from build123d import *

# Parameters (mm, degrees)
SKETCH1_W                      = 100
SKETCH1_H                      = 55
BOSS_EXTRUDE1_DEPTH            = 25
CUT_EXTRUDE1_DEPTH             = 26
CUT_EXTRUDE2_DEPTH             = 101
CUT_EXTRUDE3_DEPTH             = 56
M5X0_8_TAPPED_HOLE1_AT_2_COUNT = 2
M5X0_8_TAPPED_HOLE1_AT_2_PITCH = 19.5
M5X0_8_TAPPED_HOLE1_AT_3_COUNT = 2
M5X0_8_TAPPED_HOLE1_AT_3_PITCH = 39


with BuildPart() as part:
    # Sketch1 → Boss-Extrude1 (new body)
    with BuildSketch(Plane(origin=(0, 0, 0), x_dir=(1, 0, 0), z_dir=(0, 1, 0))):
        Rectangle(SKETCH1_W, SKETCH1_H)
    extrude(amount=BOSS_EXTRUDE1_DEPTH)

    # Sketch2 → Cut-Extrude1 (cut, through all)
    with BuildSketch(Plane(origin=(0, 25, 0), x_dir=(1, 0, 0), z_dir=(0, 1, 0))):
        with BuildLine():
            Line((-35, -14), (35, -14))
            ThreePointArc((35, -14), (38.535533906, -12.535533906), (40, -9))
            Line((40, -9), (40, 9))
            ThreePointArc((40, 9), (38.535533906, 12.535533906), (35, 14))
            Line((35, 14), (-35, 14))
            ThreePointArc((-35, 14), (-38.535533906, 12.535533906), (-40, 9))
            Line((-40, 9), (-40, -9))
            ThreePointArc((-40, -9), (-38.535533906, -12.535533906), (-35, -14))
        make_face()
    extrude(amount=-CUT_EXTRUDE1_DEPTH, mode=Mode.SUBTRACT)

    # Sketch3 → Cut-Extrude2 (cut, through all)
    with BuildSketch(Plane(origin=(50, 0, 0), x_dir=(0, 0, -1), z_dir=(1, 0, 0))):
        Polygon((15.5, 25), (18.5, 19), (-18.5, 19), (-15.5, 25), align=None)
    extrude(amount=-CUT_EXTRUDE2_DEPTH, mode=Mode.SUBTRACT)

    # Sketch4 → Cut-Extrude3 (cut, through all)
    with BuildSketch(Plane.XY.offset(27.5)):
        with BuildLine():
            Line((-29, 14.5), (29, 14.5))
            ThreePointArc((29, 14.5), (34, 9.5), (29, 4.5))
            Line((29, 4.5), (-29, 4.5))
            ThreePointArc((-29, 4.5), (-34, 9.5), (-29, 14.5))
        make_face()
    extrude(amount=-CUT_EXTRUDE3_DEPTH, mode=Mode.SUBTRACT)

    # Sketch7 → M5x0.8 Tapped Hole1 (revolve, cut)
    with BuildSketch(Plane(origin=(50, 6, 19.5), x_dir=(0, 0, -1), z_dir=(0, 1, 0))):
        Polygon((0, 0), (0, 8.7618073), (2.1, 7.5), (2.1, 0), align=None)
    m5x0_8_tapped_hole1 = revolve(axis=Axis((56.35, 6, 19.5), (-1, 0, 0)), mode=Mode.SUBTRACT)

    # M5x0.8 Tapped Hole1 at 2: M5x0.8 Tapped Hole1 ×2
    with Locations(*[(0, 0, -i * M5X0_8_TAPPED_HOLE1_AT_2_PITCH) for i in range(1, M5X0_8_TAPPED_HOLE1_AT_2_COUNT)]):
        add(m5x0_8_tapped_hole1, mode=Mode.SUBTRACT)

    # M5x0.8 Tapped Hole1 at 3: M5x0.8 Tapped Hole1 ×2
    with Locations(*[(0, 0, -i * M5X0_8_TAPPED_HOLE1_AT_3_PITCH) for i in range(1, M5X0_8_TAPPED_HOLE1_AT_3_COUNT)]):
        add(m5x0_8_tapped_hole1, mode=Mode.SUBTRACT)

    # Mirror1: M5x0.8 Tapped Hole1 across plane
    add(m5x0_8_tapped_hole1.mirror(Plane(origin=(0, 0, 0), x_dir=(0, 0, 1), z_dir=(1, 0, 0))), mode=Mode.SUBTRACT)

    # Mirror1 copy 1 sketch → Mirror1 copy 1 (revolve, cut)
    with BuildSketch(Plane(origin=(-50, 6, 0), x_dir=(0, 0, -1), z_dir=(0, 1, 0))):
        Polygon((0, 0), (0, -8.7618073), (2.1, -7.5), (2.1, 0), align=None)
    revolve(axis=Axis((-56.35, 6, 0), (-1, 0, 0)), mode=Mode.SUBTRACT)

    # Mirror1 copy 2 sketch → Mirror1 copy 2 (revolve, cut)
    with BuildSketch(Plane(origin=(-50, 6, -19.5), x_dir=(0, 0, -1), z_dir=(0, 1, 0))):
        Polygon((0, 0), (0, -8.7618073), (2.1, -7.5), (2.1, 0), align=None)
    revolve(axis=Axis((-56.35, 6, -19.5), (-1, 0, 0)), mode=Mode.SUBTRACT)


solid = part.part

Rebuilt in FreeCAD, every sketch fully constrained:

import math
import FreeCAD as App
import Part
import Sketcher
Q = App.Units.Quantity


def add_polygon(sketch, points):
    """Adds a closed chain of lines whose ends are joined by coincident constraints."""
    first, n = sketch.GeometryCount, len(points)
    for a, b in zip(points, points[1:] + points[:1]):
        sketch.addGeometry(Part.LineSegment(App.Vector(*a, 0), App.Vector(*b, 0)), False)
    for i in range(n):
        sketch.addConstraint(Sketcher.Constraint("Coincident", first + i, 2, first + (i + 1) % n, 1))

doc = App.newDocument("Part")
body = doc.addObject("PartDesign::Body", "Body")

sketch1 = body.newObject("Sketcher::SketchObject", "Sketch")
sketch1.AttachmentSupport = (doc.getObject("XZ_Plane"), [""])
sketch1.MapMode = "FlatFace"
add_polygon(sketch1, [(-50, -28), (-50, 28), (50, 28), (50, -28)])
sketch1.addConstraint(Sketcher.Constraint("Vertical", 0))
sketch1.addConstraint(Sketcher.Constraint("Horizontal", 1))
sketch1.addConstraint(Sketcher.Constraint("Vertical", 2))
sketch1.addConstraint(Sketcher.Constraint("Horizontal", 3))
sketch1.addConstraint(Sketcher.Constraint("Symmetric", 0, 2, 2, 2, -1, 1))
sketch1.addConstraint(Sketcher.Constraint("DistanceX", 1, 1, 1, 2, Q("100 mm")))
sketch1.addConstraint(Sketcher.Constraint("DistanceY", 0, 1, 0, 2, Q("55 mm")))
pad1 = body.newObject("PartDesign::Pad", "Pad")
pad1.Profile = sketch1
pad1.Length = 25
pad1.Reversed = True

sketch2 = body.newObject("Sketcher::SketchObject", "Sketch001")
sketch2.AttachmentSupport = (doc.getObject("XZ_Plane"), [""])
sketch2.MapMode = "FlatFace"
sketch2.AttachmentOffset = App.Placement(App.Vector(0, 0, -25), App.Rotation())
sketch2.addGeometry(Part.LineSegment(App.Vector(-35, 14, 0), App.Vector(35, 14, 0)), False)
sketch2.addGeometry(Part.ArcOfCircle(Part.Circle(App.Vector(35, 9, 0), App.Vector(0, 0, 1), 5), math.radians(0), math.radians(90)), False)
sketch2.addGeometry(Part.LineSegment(App.Vector(40, 9, 0), App.Vector(40, -9, 0)), False)
sketch2.addGeometry(Part.ArcOfCircle(Part.Circle(App.Vector(35, -9, 0), App.Vector(0, 0, 1), 5), math.radians(-90), math.radians(0)), False)
sketch2.addGeometry(Part.LineSegment(App.Vector(35, -14, 0), App.Vector(-35, -14, 0)), False)
sketch2.addGeometry(Part.ArcOfCircle(Part.Circle(App.Vector(-35, -9, 0), App.Vector(0, 0, 1), 5), math.radians(180), math.radians(270)), False)
sketch2.addGeometry(Part.LineSegment(App.Vector(-40, -9, 0), App.Vector(-40, 9, 0)), False)
sketch2.addGeometry(Part.ArcOfCircle(Part.Circle(App.Vector(-35, 9, 0), App.Vector(0, 0, 1), 5), math.radians(90), math.radians(180)), False)
sketch2.addConstraint(Sketcher.Constraint("Tangent", 0, 2, 1, 2))
sketch2.addConstraint(Sketcher.Constraint("Tangent", 1, 1, 2, 1))
sketch2.addConstraint(Sketcher.Constraint("Tangent", 2, 2, 3, 2))
sketch2.addConstraint(Sketcher.Constraint("Tangent", 3, 1, 4, 1))
sketch2.addConstraint(Sketcher.Constraint("Tangent", 4, 2, 5, 2))
sketch2.addConstraint(Sketcher.Constraint("Tangent", 5, 1, 6, 1))
sketch2.addConstraint(Sketcher.Constraint("Tangent", 6, 2, 7, 2))
sketch2.addConstraint(Sketcher.Constraint("Tangent", 7, 1, 0, 1))
sketch2.addConstraint(Sketcher.Constraint("Horizontal", 0))
sketch2.addConstraint(Sketcher.Constraint("Vertical", 2))
sketch2.addConstraint(Sketcher.Constraint("Horizontal", 4))
sketch2.addConstraint(Sketcher.Constraint("Vertical", 6))
sketch2.addConstraint(Sketcher.Constraint("Equal", 1, 3))
sketch2.addConstraint(Sketcher.Constraint("Equal", 3, 5))
sketch2.addConstraint(Sketcher.Constraint("Equal", 5, 7))
sketch2.addConstraint(Sketcher.Constraint("Symmetric", 1, 3, 5, 3, -1, 1))
sketch2.addConstraint(Sketcher.Constraint("Radius", 1, Q("5 mm")))
sketch2.addConstraint(Sketcher.Constraint("DistanceX", 0, 1, 0, 2, Q("70 mm")))
sketch2.addConstraint(Sketcher.Constraint("DistanceY", 2, 2, 2, 1, Q("18 mm")))
pocket1 = body.newObject("PartDesign::Pocket", "Pocket")
pocket1.Profile = sketch2
pocket1.Type = "ThroughAll"
pocket1.Reversed = True

sketch3 = body.newObject("Sketcher::SketchObject", "Sketch002")
sketch3.AttachmentSupport = (doc.getObject("YZ_Plane"), [""])
sketch3.MapMode = "FlatFace"
sketch3.AttachmentOffset = App.Placement(App.Vector(0, 0, 50), App.Rotation())
add_polygon(sketch3, [(19, -18), (25, -16), (25, 16), (19, 18)])
sketch3.addConstraint(Sketcher.Constraint("Vertical", 1))
sketch3.addConstraint(Sketcher.Constraint("Vertical", 3))
sketch3.addConstraint(Sketcher.Constraint("Equal", 0, 2))
sketch3.addConstraint(Sketcher.Constraint("DistanceY", 1, 1, 1, 2, Q("31 mm")))
sketch3.addConstraint(Sketcher.Constraint("DistanceY", 3, 2, 3, 1, Q("37 mm")))
sketch3.addConstraint(Sketcher.Constraint("DistanceX", -1, 1, 0, 2, Q("25 mm")))
sketch3.addConstraint(Sketcher.Constraint("DistanceX", -1, 1, 2, 2, Q("19 mm")))
sketch3.addConstraint(Sketcher.Constraint("DistanceY", 0, 2, -1, 1, Q("15.5 mm")))
pocket2 = body.newObject("PartDesign::Pocket", "Pocket001")
pocket2.Profile = sketch3
pocket2.Type = "ThroughAll"

sketch4 = body.newObject("Sketcher::SketchObject", "Sketch003")
sketch4.AttachmentSupport = (doc.getObject("XY_Plane"), [""])
sketch4.MapMode = "FlatFace"
sketch4.AttachmentOffset = App.Placement(App.Vector(0, 0, 27.5), App.Rotation())
sketch4.addGeometry(Part.LineSegment(App.Vector(29, 14, 0), App.Vector(-29, 14, 0)), False)
sketch4.addGeometry(Part.ArcOfCircle(Part.Circle(App.Vector(-29, 10, 0), App.Vector(0, 0, 1), 5), math.radians(90), math.radians(270)), False)
sketch4.addGeometry(Part.LineSegment(App.Vector(-29, 4, 0), App.Vector(29, 4, 0)), False)
sketch4.addGeometry(Part.ArcOfCircle(Part.Circle(App.Vector(29, 10, 0), App.Vector(0, 0, 1), 5), math.radians(-90), math.radians(90)), False)
sketch4.addConstraint(Sketcher.Constraint("Tangent", 0, 2, 1, 1))
sketch4.addConstraint(Sketcher.Constraint("Tangent", 1, 2, 2, 1))
sketch4.addConstraint(Sketcher.Constraint("Tangent", 2, 2, 3, 1))
sketch4.addConstraint(Sketcher.Constraint("Tangent", 3, 2, 0, 1))
sketch4.addConstraint(Sketcher.Constraint("Horizontal", 0))
sketch4.addConstraint(Sketcher.Constraint("Horizontal", 2))
sketch4.addConstraint(Sketcher.Constraint("Radius", 1, Q("5 mm")))
sketch4.addConstraint(Sketcher.Constraint("DistanceX", 0, 2, 0, 1, Q("58 mm")))
sketch4.addConstraint(Sketcher.Constraint("DistanceX", 1, 3, -1, 1, Q("29 mm")))
sketch4.addConstraint(Sketcher.Constraint("DistanceY", -1, 1, 1, 3, Q("9.5 mm")))
pocket3 = body.newObject("PartDesign::Pocket", "Pocket002")
pocket3.Profile = sketch4
pocket3.Type = "ThroughAll"

sketch5 = body.newObject("Sketcher::SketchObject", "Sketch004")
sketch5.AttachmentSupport = (doc.getObject("XZ_Plane"), [""])
sketch5.MapMode = "FlatFace"
sketch5.AttachmentOffset = App.Placement(App.Vector(0, 0, -6), App.Rotation())
add_polygon(sketch5, [(41.2, 19.5), (50, 19.5), (50, 17.4), (42.5, 17.4)])
sketch5.addGeometry(Part.LineSegment(App.Vector(50, 19.5, 0), App.Vector(41.2, 19.5, 0)), True)
sketch5.addConstraint(Sketcher.Constraint("Horizontal", 0))
sketch5.addConstraint(Sketcher.Constraint("Vertical", 1))
sketch5.addConstraint(Sketcher.Constraint("Horizontal", 2))
sketch5.addConstraint(Sketcher.Constraint("Horizontal", 4))
sketch5.addConstraint(Sketcher.Constraint("Coincident", 4, 1, 0, 2))
sketch5.addConstraint(Sketcher.Constraint("Equal", 0, 4))
sketch5.addConstraint(Sketcher.Constraint("Angle", 3, Q("121 deg")))
sketch5.addConstraint(Sketcher.Constraint("DistanceX", 2, 2, 2, 1, Q("7.5 mm")))
sketch5.addConstraint(Sketcher.Constraint("DistanceY", 1, 2, 1, 1, Q("2.1 mm")))
sketch5.addConstraint(Sketcher.Constraint("DistanceX", -1, 1, 0, 2, Q("50 mm")))
sketch5.addConstraint(Sketcher.Constraint("DistanceY", -1, 1, 0, 2, Q("19.5 mm")))
groove = body.newObject("PartDesign::Groove", "Groove")
groove.Profile = sketch5
groove.ReferenceAxis = (sketch5, ["Axis0"])
groove.Angle = 360
doc.recompute()

linearpattern = body.newObject("PartDesign::LinearPattern", "LinearPattern")
linearpattern.Originals = [groove]
linearpattern.Direction = (doc.getObject("Z_Axis"), [""])
linearpattern.Mode = "offset"
linearpattern.Offset = 19.5
linearpattern.Occurrences = 2
linearpattern.Reversed = True
body.Tip = linearpattern
doc.recompute()

linearpattern2 = body.newObject("PartDesign::LinearPattern", "LinearPattern001")
linearpattern2.Originals = [groove]
linearpattern2.Direction = (doc.getObject("Z_Axis"), [""])
linearpattern2.Mode = "offset"
linearpattern2.Offset = 39
linearpattern2.Occurrences = 2
linearpattern2.Reversed = True
body.Tip = linearpattern2
doc.recompute()

mirrored = body.newObject("PartDesign::Mirrored", "Mirrored")
mirrored.Originals = [groove]
mirrored.MirrorPlane = (doc.getObject("YZ_Plane"), [""])
body.Tip = mirrored

sketch6 = body.newObject("Sketcher::SketchObject", "Sketch005")
sketch6.AttachmentSupport = (doc.getObject("XZ_Plane"), [""])
sketch6.MapMode = "FlatFace"
sketch6.AttachmentOffset = App.Placement(App.Vector(0, 0, -6), App.Rotation())
add_polygon(sketch6, [(-50, 0), (-41.2, 0), (-42.5, -2.1), (-50, -2.1)])
sketch6.addConstraint(Sketcher.Constraint("Horizontal", 0))
sketch6.addConstraint(Sketcher.Constraint("Horizontal", 2))
sketch6.addConstraint(Sketcher.Constraint("Vertical", 3))
sketch6.addConstraint(Sketcher.Constraint("PointOnObject", 0, 2, -1))
sketch6.addConstraint(Sketcher.Constraint("Angle", 1, Q("-121 deg")))
sketch6.addConstraint(Sketcher.Constraint("DistanceX", 2, 2, 2, 1, Q("7.5 mm")))
sketch6.addConstraint(Sketcher.Constraint("DistanceY", 3, 1, 3, 2, Q("2.1 mm")))
sketch6.addConstraint(Sketcher.Constraint("DistanceX", 2, 2, -1, 1, Q("50 mm")))
groove2 = body.newObject("PartDesign::Groove", "Groove001")
groove2.Profile = sketch6
groove2.ReferenceAxis = (sketch6, ["H_Axis"])
groove2.Angle = 360

sketch7 = body.newObject("Sketcher::SketchObject", "Sketch006")
sketch7.AttachmentSupport = (doc.getObject("XZ_Plane"), [""])
sketch7.MapMode = "FlatFace"
sketch7.AttachmentOffset = App.Placement(App.Vector(0, 0, -6), App.Rotation())
add_polygon(sketch7, [(-50, -19.5), (-41.2, -19.5), (-42.5, -21.6), (-50, -21.6)])
sketch7.addGeometry(Part.LineSegment(App.Vector(-41.2, -19.5, 0), App.Vector(-50, -19.5, 0)), True)
sketch7.addConstraint(Sketcher.Constraint("Horizontal", 0))
sketch7.addConstraint(Sketcher.Constraint("Horizontal", 2))
sketch7.addConstraint(Sketcher.Constraint("Vertical", 3))
sketch7.addConstraint(Sketcher.Constraint("Horizontal", 4))
sketch7.addConstraint(Sketcher.Constraint("Coincident", 4, 1, 0, 2))
sketch7.addConstraint(Sketcher.Constraint("Vertical", 2, 2, 4, 2))
sketch7.addConstraint(Sketcher.Constraint("Angle", 1, Q("-121 deg")))
sketch7.addConstraint(Sketcher.Constraint("DistanceX", 2, 2, 2, 1, Q("7.5 mm")))
sketch7.addConstraint(Sketcher.Constraint("DistanceY", 3, 1, 3, 2, Q("2.1 mm")))
sketch7.addConstraint(Sketcher.Constraint("DistanceX", 2, 2, -1, 1, Q("50 mm")))
sketch7.addConstraint(Sketcher.Constraint("DistanceY", 0, 2, -1, 1, Q("19.5 mm")))
groove3 = body.newObject("PartDesign::Groove", "Groove002")
groove3.Profile = sketch7
groove3.ReferenceAxis = (sketch7, ["Axis0"])
groove3.Angle = 360

doc.recompute()
